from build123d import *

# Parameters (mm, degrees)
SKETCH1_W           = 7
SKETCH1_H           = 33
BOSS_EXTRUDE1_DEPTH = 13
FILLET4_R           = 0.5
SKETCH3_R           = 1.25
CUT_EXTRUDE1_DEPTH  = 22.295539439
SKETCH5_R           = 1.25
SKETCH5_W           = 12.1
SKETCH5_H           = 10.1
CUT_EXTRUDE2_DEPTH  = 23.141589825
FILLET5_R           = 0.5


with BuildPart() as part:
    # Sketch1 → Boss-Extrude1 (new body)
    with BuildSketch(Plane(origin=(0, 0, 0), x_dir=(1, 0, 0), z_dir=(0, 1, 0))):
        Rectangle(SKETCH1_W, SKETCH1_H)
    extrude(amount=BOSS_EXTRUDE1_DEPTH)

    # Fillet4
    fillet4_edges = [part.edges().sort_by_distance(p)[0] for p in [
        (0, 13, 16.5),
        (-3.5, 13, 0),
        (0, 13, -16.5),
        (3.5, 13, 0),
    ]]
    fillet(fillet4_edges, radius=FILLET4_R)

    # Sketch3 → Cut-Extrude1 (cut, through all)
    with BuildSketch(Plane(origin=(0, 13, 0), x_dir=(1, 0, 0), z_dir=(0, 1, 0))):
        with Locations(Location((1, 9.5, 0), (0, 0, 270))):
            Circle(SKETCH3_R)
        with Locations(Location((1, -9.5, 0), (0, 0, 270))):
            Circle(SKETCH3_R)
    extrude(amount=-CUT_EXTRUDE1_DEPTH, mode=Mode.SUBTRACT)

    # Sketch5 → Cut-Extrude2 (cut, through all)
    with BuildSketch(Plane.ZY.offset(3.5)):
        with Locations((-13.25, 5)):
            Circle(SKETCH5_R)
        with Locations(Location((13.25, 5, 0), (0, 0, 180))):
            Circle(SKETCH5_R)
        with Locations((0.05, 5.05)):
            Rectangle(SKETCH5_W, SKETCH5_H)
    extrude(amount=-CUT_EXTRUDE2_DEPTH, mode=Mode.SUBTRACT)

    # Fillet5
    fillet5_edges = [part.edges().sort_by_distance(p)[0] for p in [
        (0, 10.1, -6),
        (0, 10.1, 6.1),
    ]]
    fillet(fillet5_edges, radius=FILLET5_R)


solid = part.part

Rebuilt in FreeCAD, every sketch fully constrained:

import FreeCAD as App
import Part
import Sketcher

V = App.Vector
Q = App.Units.Quantity


def edges_at(feature, points):
    """Names of the edges that pass closest to the given points."""
    edges = feature.Shape.Edges
    near = lambda p: min(range(len(edges)), key=lambda i: edges[i].distToShape(Part.Vertex(*p))[0])
    return sorted({f"Edge{near(p) + 1}" for p in points})


def add_polygon(sketch, points):
    """Adds a closed chain of lines whose ends are joined by coincident constraints."""
    first, n = sketch.GeometryCount, len(points)
    for a, b in zip(points, points[1:] + points[:1]):
        sketch.addGeometry(Part.LineSegment(App.Vector(*a, 0), App.Vector(*b, 0)), False)
    for i in range(n):
        sketch.addConstraint(Sketcher.Constraint("Coincident", first + i, 2, first + (i + 1) % n, 1))

doc = App.newDocument("Part")
body = doc.addObject("PartDesign::Body", "Body")

# Sketch on XZ plane
sketch1 = body.newObject("Sketcher::SketchObject", "Sketch")
sketch1.AttachmentSupport = (doc.getObject("XZ_Plane"), [""])
sketch1.MapMode = "FlatFace"
add_polygon(sketch1, [(-4, -16), (-4, 16), (4, 16), (4, -16)])  # lines 0-3
sketch1.addConstraint([
    Sketcher.Constraint("Vertical", 0),
    Sketcher.Constraint("Horizontal", 1),
    Sketcher.Constraint("Vertical", 2),
    Sketcher.Constraint("Horizontal", 3),
    Sketcher.Constraint("Symmetric", 0, 2, 2, 2, -1, 1),
    Sketcher.Constraint("DistanceX", 1, 1, 1, 2, Q("7 mm")),
    Sketcher.Constraint("DistanceY", 0, 1, 0, 2, Q("33 mm")),
])
pad1 = body.newObject("PartDesign::Pad", "Pad")
pad1.Profile = sketch1
pad1.Length = 13
pad1.Reversed = True
doc.recompute()

fillet = body.newObject("PartDesign::Fillet", "Fillet")
fillet.Base = (pad1, edges_at(pad1, [
    (0, 13, 16.5),
    (-3.5, 13, 0),
    (0, 13, -16.5),
    (3.5, 13, 0),
]))
fillet.Radius = 0.5

# Sketch on XZ plane
sketch2 = body.newObject("Sketcher::SketchObject", "Sketch001")
sketch2.AttachmentSupport = (doc.getObject("XZ_Plane"), [""])
sketch2.MapMode = "FlatFace"
sketch2.AttachmentOffset = App.Placement(V(0, 0, -13), App.Rotation())
sketch2.addGeometry([
    Part.Circle(V(1, -9.5, 0), V(0, 0, 1), 1.2),
    Part.Circle(V(1, 9.5, 0), V(0, 0, 1), 1.2),
], False)
sketch2.addConstraint([
    Sketcher.Constraint("Equal", 0, 1),
    Sketcher.Constraint("Symmetric", 0, 3, 1, 3, -1),
    Sketcher.Constraint("Diameter", 0, Q("2.5 mm")),
    Sketcher.Constraint("DistanceX", -1, 1, 0, 3, Q("1 mm")),
    Sketcher.Constraint("DistanceY", 0, 3, 1, 3, Q("19 mm")),
])
pocket1 = body.newObject("PartDesign::Pocket", "Pocket")
pocket1.Profile = sketch2
pocket1.Type = "ThroughAll"
pocket1.Reversed = True

# Sketch on YZ plane
sketch3 = body.newObject("Sketcher::SketchObject", "Sketch002")
sketch3.AttachmentSupport = (doc.getObject("YZ_Plane"), [""])
sketch3.MapMode = "FlatFace"
sketch3.AttachmentOffset = App.Placement(V(0, 0, -3.5), App.Rotation())
sketch3.addGeometry(Part.Circle(V(5, -13.2, 0), V(0, 0, 1), 1.2), False)  # 0
sketch3.addGeometry(Part.Circle(V(5, 13.2, 0), V(0, 0, 1), 1.2), False)  # 1
add_polygon(sketch3, [(10.1, -6), (0, -6), (0, 6.1), (10.1, 6.1)])  # lines 2-5
sketch3.addConstraint([
    Sketcher.Constraint("Horizontal", 2),
    Sketcher.Constraint("Vertical", 3),
    Sketcher.Constraint("Horizontal", 4),
    Sketcher.Constraint("Vertical", 5),
    Sketcher.Constraint("Equal", 0, 1),
    Sketcher.Constraint("Symmetric", 0, 3, 1, 3, -1),
    Sketcher.Constraint("PointOnObject", 2, 2, -2),
    Sketcher.Constraint("Diameter", 0, Q("2.5 mm")),
    Sketcher.Constraint("DistanceX", 2, 2, 2, 1, Q("10.1 mm")),
    Sketcher.Constraint("DistanceY", 3, 1, 3, 2, Q("12.1 mm")),
    Sketcher.Constraint("DistanceX", -1, 1, 0, 3, Q("5 mm")),
    Sketcher.Constraint("DistanceY", 2, 2, -1, 1, Q("6 mm")),
    Sketcher.Constraint("DistanceY", 0, 3, 1, 3, Q("26.5 mm")),
])
pocket2 = body.newObject("PartDesign::Pocket", "Pocket001")
pocket2.Profile = sketch3
pocket2.Type = "ThroughAll"
pocket2.Reversed = True
doc.recompute()

fillet2 = body.newObject("PartDesign::Fillet", "Fillet001")
fillet2.Base = (pocket2, edges_at(pocket2, [(0, 10.1, -6), (0, 10.1, 6.1)]))
fillet2.Radius = 0.5

doc.recompute()
